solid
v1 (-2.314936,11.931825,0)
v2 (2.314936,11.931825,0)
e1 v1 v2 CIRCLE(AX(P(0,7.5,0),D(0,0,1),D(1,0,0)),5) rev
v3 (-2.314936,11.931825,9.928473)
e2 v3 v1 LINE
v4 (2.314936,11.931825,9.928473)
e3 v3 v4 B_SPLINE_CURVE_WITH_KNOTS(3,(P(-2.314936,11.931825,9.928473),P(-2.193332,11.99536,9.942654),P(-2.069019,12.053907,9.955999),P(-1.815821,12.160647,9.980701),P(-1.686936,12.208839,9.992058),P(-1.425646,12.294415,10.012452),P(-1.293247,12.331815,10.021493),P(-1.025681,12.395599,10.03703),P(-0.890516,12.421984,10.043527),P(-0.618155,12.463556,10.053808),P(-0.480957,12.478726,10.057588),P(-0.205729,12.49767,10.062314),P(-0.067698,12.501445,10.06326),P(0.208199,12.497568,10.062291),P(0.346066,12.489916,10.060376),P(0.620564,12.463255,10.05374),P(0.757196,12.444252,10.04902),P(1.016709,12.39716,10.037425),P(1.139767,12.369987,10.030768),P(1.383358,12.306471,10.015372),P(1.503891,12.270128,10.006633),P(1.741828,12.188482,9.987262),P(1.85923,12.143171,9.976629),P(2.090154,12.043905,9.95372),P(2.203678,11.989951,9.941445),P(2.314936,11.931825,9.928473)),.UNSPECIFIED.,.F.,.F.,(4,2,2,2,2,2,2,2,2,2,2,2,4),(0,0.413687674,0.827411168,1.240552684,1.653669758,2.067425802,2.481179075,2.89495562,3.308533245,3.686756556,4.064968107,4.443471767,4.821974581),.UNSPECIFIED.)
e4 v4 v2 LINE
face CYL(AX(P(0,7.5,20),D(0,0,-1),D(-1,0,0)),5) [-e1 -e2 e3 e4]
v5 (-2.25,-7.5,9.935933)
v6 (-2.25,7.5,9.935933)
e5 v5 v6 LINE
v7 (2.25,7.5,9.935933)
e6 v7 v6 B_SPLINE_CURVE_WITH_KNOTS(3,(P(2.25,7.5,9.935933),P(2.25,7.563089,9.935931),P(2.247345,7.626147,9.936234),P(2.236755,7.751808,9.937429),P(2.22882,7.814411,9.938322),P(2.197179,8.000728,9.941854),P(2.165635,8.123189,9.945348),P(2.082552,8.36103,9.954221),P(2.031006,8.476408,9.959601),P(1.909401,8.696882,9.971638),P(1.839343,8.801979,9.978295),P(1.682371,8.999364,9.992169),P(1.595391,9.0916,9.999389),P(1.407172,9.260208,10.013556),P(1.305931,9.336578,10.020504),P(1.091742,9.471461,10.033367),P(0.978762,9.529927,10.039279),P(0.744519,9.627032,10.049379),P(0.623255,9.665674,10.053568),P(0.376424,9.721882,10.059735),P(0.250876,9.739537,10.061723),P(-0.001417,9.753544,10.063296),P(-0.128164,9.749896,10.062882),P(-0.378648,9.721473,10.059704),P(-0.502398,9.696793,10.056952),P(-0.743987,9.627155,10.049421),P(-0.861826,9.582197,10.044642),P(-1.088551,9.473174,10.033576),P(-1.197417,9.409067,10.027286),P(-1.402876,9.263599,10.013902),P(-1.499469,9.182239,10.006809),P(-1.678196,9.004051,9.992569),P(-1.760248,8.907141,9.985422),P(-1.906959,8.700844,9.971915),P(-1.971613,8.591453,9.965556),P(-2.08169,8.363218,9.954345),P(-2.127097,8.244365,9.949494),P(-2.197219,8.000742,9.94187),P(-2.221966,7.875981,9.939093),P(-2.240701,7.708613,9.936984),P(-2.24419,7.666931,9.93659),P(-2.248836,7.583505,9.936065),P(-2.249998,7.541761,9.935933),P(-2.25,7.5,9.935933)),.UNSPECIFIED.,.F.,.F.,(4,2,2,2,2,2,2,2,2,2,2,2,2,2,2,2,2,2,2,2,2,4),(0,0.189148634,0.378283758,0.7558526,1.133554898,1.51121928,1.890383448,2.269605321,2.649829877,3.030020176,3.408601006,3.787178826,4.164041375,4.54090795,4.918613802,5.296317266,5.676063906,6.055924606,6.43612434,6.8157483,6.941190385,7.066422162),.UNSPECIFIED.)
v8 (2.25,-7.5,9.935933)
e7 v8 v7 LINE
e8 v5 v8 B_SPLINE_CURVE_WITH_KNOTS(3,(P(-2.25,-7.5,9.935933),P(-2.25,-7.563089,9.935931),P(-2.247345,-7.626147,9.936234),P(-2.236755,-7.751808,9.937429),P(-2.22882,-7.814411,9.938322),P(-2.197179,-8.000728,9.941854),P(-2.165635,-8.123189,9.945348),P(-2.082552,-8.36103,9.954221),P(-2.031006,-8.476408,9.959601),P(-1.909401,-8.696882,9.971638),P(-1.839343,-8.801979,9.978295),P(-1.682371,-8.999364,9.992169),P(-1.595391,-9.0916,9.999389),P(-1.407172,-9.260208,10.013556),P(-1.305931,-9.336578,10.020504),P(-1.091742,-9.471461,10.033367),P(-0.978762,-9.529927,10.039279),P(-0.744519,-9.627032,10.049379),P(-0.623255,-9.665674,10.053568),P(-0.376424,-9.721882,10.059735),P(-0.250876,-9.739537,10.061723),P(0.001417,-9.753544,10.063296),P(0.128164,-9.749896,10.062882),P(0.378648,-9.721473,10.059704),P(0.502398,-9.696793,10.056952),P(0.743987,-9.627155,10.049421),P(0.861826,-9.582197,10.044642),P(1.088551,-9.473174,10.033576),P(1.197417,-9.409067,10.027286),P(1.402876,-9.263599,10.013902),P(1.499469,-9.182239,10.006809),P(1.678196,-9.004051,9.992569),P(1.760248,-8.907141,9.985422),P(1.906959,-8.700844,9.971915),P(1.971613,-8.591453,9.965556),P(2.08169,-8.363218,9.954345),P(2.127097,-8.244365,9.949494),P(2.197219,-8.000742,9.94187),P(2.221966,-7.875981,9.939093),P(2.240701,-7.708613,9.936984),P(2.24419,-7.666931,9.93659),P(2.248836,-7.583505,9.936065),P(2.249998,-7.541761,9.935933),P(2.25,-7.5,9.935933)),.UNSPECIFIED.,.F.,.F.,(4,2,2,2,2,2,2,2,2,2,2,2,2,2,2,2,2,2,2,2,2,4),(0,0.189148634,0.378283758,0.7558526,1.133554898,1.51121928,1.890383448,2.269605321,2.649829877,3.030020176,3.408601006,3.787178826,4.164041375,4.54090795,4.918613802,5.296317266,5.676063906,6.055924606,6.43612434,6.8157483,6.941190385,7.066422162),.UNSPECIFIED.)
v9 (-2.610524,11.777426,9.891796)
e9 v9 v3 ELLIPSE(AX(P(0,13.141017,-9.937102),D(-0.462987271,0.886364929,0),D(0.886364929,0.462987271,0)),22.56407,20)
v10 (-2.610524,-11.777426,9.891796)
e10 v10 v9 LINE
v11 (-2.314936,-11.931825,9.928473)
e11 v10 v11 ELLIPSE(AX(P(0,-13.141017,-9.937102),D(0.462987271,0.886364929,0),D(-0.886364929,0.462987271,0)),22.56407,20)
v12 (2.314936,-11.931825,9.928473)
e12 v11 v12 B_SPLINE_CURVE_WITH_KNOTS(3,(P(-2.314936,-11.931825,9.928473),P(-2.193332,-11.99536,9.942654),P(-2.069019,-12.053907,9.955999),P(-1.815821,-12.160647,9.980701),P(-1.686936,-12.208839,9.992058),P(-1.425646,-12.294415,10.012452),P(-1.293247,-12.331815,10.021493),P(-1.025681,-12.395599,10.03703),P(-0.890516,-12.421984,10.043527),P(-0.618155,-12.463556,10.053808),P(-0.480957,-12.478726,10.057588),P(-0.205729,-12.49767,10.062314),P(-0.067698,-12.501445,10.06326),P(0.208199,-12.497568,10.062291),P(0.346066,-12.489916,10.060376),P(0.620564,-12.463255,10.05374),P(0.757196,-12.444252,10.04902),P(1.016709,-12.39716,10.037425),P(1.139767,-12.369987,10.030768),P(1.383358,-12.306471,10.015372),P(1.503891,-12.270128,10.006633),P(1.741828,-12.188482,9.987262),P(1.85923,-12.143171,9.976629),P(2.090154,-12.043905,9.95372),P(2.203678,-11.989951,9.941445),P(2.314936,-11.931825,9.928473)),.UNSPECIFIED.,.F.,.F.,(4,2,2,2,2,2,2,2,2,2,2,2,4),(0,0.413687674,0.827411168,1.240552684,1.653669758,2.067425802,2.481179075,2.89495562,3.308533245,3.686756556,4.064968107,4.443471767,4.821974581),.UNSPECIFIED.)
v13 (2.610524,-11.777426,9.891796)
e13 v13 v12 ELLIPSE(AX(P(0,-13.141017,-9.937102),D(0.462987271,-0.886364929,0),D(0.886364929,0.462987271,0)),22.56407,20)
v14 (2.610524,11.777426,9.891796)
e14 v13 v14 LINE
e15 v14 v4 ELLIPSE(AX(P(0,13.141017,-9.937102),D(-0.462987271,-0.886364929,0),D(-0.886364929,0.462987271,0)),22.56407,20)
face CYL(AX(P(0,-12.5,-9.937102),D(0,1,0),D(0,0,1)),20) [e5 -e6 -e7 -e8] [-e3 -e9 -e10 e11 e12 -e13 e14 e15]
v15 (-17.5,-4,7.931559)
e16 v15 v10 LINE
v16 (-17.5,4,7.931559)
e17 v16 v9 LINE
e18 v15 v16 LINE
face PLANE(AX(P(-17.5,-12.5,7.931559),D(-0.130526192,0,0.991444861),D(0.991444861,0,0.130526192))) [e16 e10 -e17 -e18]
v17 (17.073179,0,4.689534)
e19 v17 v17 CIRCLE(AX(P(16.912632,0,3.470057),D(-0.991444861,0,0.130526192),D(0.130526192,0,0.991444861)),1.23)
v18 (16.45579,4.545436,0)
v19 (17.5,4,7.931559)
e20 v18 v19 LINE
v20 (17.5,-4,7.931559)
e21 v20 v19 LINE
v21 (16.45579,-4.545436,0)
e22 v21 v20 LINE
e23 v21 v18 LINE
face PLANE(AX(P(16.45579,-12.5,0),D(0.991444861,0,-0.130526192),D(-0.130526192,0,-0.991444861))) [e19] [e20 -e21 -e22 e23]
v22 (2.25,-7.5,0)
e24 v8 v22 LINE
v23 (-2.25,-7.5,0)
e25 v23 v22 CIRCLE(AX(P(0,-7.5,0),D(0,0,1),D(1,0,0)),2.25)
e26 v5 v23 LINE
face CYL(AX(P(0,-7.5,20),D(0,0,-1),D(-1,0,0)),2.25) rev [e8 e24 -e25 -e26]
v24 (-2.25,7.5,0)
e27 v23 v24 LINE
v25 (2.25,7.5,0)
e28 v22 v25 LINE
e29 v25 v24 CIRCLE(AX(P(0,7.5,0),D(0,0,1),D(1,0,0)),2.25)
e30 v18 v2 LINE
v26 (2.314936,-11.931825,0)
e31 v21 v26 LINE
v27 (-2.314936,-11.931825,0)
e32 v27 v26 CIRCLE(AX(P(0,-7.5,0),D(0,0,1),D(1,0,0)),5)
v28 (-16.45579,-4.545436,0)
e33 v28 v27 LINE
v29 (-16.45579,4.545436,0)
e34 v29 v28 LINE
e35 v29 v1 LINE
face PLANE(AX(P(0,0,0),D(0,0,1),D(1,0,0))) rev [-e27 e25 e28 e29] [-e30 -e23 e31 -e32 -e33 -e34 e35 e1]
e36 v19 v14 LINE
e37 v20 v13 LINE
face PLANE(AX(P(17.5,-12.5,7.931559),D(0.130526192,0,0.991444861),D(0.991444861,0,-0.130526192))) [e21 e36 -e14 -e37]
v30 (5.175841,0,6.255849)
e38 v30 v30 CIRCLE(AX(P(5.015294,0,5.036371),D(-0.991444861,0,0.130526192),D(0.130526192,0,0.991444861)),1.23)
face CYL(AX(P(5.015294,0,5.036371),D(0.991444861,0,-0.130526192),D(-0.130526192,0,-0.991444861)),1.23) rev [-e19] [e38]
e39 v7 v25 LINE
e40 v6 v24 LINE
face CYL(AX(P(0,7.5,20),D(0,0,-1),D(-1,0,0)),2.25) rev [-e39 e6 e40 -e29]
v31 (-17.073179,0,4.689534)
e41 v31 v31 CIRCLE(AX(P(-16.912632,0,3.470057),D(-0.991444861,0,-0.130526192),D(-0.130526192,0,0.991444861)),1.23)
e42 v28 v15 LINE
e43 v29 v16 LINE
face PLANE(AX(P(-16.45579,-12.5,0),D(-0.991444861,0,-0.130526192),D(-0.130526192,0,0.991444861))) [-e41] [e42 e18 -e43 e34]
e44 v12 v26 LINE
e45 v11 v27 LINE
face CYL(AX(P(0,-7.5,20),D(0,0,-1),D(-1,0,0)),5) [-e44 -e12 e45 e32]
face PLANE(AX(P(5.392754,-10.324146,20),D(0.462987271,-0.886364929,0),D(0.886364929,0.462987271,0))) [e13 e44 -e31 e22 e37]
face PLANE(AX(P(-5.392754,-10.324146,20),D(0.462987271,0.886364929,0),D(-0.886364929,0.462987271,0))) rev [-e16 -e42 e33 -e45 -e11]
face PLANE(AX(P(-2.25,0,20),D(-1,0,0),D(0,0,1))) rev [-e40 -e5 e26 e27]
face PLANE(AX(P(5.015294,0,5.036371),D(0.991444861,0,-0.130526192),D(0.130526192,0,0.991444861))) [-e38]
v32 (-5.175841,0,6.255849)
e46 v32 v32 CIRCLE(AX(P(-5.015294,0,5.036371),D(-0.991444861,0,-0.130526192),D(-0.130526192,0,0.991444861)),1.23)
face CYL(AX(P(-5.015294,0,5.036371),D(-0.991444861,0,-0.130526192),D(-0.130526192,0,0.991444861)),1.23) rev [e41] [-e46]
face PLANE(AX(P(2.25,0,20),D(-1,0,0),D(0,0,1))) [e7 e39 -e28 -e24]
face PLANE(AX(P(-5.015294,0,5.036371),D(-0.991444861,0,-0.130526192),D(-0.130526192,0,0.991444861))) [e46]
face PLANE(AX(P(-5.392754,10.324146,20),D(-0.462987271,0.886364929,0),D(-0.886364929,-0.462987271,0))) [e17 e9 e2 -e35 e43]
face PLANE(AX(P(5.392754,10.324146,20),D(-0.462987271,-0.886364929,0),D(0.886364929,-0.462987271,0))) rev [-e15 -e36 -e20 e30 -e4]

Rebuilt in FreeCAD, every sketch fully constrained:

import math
import FreeCAD as App
import Part
import Sketcher

V = App.Vector
Q = App.Units.Quantity


def add_polygon(sketch, points):
    """Adds a closed chain of lines whose ends are joined by coincident constraints."""
    first, n = sketch.GeometryCount, len(points)
    for a, b in zip(points, points[1:] + points[:1]):
        sketch.addGeometry(Part.LineSegment(App.Vector(*a, 0), App.Vector(*b, 0)), False)
    for i in range(n):
        sketch.addConstraint(Sketcher.Constraint("Coincident", first + i, 2, first + (i + 1) % n, 1))

doc = App.newDocument("Part")
body = doc.addObject("PartDesign::Body", "Body")

# Sketch on XY plane
sketch1 = doc.addObject("Sketcher::SketchObject", "Sketch")
body.addObject(sketch1)
sketch1.AttachmentSupport = (doc.XY_Plane, [""])
sketch1.MapMode = "FlatFace"
sketch1.addGeometry([
    Part.LineSegment(V(-2.314936, 11.931825, 0), V(-17.5, 4, 0)),  # 0
    Part.LineSegment(V(-17.5, 4, 0), V(-17.5, -4, 0)),  # 1
    Part.LineSegment(V(-17.5, -4, 0), V(-2.314936, -11.931825, 0)),  # 2
    Part.ArcOfCircle(Part.Circle(V(0, -7.5, 0), V(0, 0, 1), 5), math.radians(-117.580039), math.radians(-62.419961)),  # 3
    Part.LineSegment(V(2.314936, -11.931825, 0), V(17.5, -4, 0)),  # 4
    Part.LineSegment(V(17.5, -4, 0), V(17.5, 4, 0)),  # 5
    Part.LineSegment(V(17.5, 4, 0), V(2.314936, 11.931825, 0)),  # 6
    Part.ArcOfCircle(Part.Circle(V(0, 7.5, 0), V(0, 0, 1), 5), math.radians(62.419961), math.radians(117.580039)),  # 7
    Part.LineSegment(V(-2.25, -7.5, 0), V(-2.25, 7.5, 0)),  # 8
    Part.ArcOfCircle(Part.Circle(V(0, 7.5, 0), V(0, 0, 1), 2.25), math.radians(0), math.radians(180)),  # 9
    Part.LineSegment(V(2.25, 7.5, 0), V(2.25, -7.5, 0)),  # 10
    Part.ArcOfCircle(Part.Circle(V(0, -7.5, 0), V(0, 0, 1), 2.25), math.radians(180), math.radians(360)),  # 11
], False)
sketch1.addConstraint([
    Sketcher.Constraint("Coincident", 0, 2, 1, 1),
    Sketcher.Constraint("Coincident", 1, 2, 2, 1),
    Sketcher.Constraint("Tangent", 2, 2, 3, 1),
    Sketcher.Constraint("Tangent", 3, 2, 4, 1),
    Sketcher.Constraint("Coincident", 4, 2, 5, 1),
    Sketcher.Constraint("Coincident", 5, 2, 6, 1),
    Sketcher.Constraint("Tangent", 6, 2, 7, 1),
    Sketcher.Constraint("Tangent", 7, 2, 0, 1),
    Sketcher.Constraint("Tangent", 8, 2, 9, 2),
    Sketcher.Constraint("Tangent", 9, 1, 10, 1),
    Sketcher.Constraint("Tangent", 10, 2, 11, 2),
    Sketcher.Constraint("Tangent", 11, 1, 8, 1),
    Sketcher.Constraint("Vertical", 1),
    Sketcher.Constraint("Vertical", 5),
    Sketcher.Constraint("Vertical", 8),
    Sketcher.Constraint("Vertical", 10),
    Sketcher.Constraint("Coincident", 9, 3, 7, 3),
    Sketcher.Constraint("Coincident", 11, 3, 3, 3),
    Sketcher.Constraint("Equal", 3, 7),
    Sketcher.Constraint("Symmetric", 3, 3, 7, 3, -1, 1),
    Sketcher.Constraint("Symmetric", 0, 2, 4, 2, -1, 1),
    Sketcher.Constraint("Parallel", 2, 6),
    Sketcher.Constraint("Horizontal", 2, 2, 3, 2),
    Sketcher.Constraint("Radius", 3, Q("5 mm")),
    Sketcher.Constraint("DistanceY", 1, 2, 1, 1, Q("8 mm")),
    Sketcher.Constraint("DistanceY", 8, 1, 8, 2, Q("15 mm")),
    Sketcher.Constraint("Radius", 9, Q("2.25 mm")),
    Sketcher.Constraint("DistanceX", 0, 2, -1, 1, Q("17.5 mm")),
])
pad1 = doc.addObject("PartDesign::Pad", "Pad")
body.addObject(pad1)
pad1.Profile = sketch1
pad1.Length = 20

# Sketch on XZ plane
sketch2 = doc.addObject("Sketcher::SketchObject", "Sketch001")
body.addObject(sketch2)
sketch2.AttachmentSupport = (doc.XZ_Plane, [""])
sketch2.MapMode = "FlatFace"
add_polygon(sketch2, [(-23.243, -5.743), (-23.243, 25.743), (23.243, 25.743), (23.243, -5.743)])  # lines 0-3
sketch2.addGeometry(Part.LineSegment(V(-17.5, 7.931559, 0), V(-16.45579, 0, 0)), False)  # 4
sketch2.addGeometry(Part.LineSegment(V(-16.45579, 0, 0), V(16.45579, 0, 0)), False)  # 5
sketch2.addGeometry(Part.LineSegment(V(16.45579, 0, 0), V(17.5, 7.931559, 0)), False)  # 6
sketch2.addGeometry(Part.LineSegment(V(17.5, 7.931559, 0), V(2.610524, 9.891796, 0)), False)  # 7
sketch2.addGeometry(Part.ArcOfCircle(Part.Circle(V(0, -9.937102, 0), V(0, 0, 1), 20), math.radians(82.5), math.radians(97.5)), False)  # 8
sketch2.addGeometry(Part.LineSegment(V(-2.610524, 9.891796, 0), V(-17.5, 7.931559, 0)), False)  # 9
sketch2.addConstraint([
    Sketcher.Constraint("Coincident", 4, 2, 5, 1),
    Sketcher.Constraint("Coincident", 5, 2, 6, 1),
    Sketcher.Constraint("Coincident", 6, 2, 7, 1),
    Sketcher.Constraint("Tangent", 7, 2, 8, 1),
    Sketcher.Constraint("Tangent", 8, 2, 9, 1),
    Sketcher.Constraint("Coincident", 9, 2, 4, 1),
    Sketcher.Constraint("Vertical", 0),
    Sketcher.Constraint("Horizontal", 1),
    Sketcher.Constraint("Vertical", 2),
    Sketcher.Constraint("Horizontal", 3),
    Sketcher.Constraint("Horizontal", 5),
    Sketcher.Constraint("Symmetric", 4, 2, 5, 2, -1, 1),
    Sketcher.Constraint("Symmetric", 7, 2, 8, 2, -2),
    Sketcher.Constraint("Perpendicular", 6, 7),
    Sketcher.Constraint("Perpendicular", 4, 9),
    Sketcher.Constraint("Radius", 8, Q("20 mm")),
    Sketcher.Constraint("Distance", 4, Q("8 mm")),
    Sketcher.Constraint("Angle", 4, Q("-82.5 deg")),
    Sketcher.Constraint("DistanceX", -1, 1, 6, 2, Q("17.5 mm")),
    Sketcher.Constraint("DistanceX", 1, 1, 1, 2, Q("46.486 mm")),
    Sketcher.Constraint("DistanceY", 0, 1, 0, 2, Q("31.486 mm")),
    Sketcher.Constraint("DistanceX", 0, 2, -1, 1, Q("23.243 mm")),
    Sketcher.Constraint("DistanceY", -1, 1, 0, 2, Q("25.743 mm")),
])
pocket1 = doc.addObject("PartDesign::Pocket", "Pocket")
body.addObject(pocket1)
pocket1.Profile = sketch2
pocket1.Type = "ThroughAll"
pocket1.Midplane = True

# Sketch on an angled plane
sketch3 = doc.addObject("Sketcher::SketchObject", "Sketch002")
body.addObject(sketch3)
sketch3.Placement = App.Placement(V(-17.196381, 0, 5.625344), App.Rotation(V(-0.130526192, 0, 0.991444861), V(0, 0.999999999, 0), V(-0.991444861, 0, -0.130526192), "ZXY"))
sketch3.addGeometry(Part.Circle(V(-2.173885, 0, 0), V(0, 0, 1), 1.23), False)
sketch3.addConstraint([
    Sketcher.Constraint("PointOnObject", 0, 3, -1),
    Sketcher.Constraint("Diameter", 0, Q("2.46 mm")),
    Sketcher.Constraint("DistanceX", 0, 3, -1, 1, Q("2.173885 mm")),
])
pocket2 = doc.addObject("PartDesign::Pocket", "Pocket001")
body.addObject(pocket2)
pocket2.Profile = sketch3
pocket2.Length = 12
doc.recompute()

mirrored = doc.addObject("PartDesign::Mirrored", "Mirrored")
body.addObject(mirrored)
mirrored.Originals = [pocket2]
mirrored.MirrorPlane = (doc.YZ_Plane, [""])
body.Tip = mirrored

doc.recompute()
